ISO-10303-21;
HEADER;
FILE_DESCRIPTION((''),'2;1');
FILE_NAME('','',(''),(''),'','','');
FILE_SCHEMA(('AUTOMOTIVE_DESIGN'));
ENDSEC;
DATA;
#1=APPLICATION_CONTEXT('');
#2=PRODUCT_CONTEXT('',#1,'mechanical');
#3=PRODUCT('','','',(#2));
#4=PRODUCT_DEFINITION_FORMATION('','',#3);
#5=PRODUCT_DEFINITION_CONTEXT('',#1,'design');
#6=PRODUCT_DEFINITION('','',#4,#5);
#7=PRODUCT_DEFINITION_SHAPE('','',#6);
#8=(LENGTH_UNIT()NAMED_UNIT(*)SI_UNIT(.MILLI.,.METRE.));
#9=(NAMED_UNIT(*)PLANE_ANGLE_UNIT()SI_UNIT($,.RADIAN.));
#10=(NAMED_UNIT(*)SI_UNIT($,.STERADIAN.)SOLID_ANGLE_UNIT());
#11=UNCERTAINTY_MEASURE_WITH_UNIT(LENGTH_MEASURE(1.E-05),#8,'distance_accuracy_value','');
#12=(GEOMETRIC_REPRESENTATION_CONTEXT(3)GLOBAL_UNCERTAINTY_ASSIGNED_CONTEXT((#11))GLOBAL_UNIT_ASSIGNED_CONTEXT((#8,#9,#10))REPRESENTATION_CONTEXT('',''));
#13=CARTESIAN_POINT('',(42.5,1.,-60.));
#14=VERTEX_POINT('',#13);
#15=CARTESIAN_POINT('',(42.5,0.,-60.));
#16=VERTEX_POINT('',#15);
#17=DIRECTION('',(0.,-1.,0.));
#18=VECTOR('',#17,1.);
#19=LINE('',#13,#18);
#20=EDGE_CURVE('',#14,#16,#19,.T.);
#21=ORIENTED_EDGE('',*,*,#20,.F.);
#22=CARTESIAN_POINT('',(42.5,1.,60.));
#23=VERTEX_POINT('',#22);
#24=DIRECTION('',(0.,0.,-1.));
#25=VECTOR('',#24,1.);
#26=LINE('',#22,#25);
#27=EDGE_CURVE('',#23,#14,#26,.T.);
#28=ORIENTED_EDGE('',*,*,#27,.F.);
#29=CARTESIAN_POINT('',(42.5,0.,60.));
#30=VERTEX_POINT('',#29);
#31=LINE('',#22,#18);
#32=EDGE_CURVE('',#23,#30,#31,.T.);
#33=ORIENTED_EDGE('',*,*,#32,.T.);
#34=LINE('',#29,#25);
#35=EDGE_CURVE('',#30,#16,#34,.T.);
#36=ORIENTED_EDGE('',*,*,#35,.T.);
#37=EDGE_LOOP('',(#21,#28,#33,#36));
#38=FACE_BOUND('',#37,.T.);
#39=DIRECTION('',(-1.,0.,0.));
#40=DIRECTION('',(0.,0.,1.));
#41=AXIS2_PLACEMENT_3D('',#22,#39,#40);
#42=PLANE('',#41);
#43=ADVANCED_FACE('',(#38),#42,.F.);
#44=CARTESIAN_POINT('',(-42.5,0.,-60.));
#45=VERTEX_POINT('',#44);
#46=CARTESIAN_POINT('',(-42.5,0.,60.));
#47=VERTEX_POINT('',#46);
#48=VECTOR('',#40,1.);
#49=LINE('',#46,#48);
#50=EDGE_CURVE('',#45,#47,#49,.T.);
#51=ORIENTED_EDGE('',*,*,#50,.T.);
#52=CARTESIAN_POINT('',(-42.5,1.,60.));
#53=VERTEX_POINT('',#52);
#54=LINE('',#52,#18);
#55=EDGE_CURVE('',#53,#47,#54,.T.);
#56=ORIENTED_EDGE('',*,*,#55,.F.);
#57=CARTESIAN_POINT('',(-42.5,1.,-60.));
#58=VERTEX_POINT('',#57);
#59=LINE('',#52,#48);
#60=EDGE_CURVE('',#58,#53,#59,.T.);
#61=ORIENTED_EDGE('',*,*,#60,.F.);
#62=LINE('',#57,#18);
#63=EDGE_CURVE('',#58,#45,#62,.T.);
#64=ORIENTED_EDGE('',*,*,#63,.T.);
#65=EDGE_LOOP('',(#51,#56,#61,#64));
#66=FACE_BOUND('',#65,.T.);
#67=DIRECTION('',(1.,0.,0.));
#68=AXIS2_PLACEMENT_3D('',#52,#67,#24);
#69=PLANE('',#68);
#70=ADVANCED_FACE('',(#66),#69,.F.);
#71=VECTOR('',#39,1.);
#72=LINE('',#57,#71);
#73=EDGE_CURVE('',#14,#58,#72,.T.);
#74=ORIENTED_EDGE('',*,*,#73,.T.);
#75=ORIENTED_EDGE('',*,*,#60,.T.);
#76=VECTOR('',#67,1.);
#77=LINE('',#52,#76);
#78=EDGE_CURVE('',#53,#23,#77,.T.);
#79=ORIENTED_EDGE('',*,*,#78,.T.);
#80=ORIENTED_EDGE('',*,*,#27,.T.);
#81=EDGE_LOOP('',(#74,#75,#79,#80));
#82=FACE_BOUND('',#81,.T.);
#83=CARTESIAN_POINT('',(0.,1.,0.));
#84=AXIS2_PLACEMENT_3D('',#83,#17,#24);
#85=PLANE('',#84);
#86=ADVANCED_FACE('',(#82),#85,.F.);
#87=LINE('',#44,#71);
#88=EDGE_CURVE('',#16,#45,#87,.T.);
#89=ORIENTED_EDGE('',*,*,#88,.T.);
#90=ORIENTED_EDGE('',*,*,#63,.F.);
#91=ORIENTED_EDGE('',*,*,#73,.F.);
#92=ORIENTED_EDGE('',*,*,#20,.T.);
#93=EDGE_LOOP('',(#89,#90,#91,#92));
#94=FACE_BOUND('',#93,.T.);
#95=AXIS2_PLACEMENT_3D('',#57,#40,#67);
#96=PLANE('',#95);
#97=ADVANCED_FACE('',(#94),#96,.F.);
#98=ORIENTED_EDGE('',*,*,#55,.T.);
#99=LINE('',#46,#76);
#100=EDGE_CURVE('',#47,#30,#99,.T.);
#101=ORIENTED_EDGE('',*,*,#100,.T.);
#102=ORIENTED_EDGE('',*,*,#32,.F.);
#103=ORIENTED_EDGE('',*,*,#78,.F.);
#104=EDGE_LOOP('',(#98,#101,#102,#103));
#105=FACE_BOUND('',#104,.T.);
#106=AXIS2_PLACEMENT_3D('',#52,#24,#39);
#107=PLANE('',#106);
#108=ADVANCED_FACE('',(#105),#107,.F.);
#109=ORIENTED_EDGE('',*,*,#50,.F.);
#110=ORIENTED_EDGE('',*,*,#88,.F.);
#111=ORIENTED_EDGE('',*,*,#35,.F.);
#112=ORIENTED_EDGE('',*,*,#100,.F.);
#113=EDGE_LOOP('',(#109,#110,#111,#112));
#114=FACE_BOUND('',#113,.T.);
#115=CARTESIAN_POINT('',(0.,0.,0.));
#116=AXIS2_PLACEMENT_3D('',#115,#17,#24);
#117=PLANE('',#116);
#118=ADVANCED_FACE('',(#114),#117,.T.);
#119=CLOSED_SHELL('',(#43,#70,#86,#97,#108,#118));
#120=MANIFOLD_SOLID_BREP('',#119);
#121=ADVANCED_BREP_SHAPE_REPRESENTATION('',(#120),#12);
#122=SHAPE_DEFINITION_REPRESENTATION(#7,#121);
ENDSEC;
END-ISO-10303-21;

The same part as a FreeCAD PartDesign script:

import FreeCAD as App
import Part
import Sketcher
from FreeCAD import Vector
Q = App.Units.Quantity

doc = App.newDocument("Part")
body = doc.addObject("PartDesign::Body", "Body")

# Sketch on XZ plane
sketch1 = body.newObject("Sketcher::SketchObject", "Sketch")
sketch1.AttachmentSupport = (doc.getObject("XZ_Plane"), [""])
sketch1.MapMode = "FlatFace"
sketch1.addGeometry([
    Part.LineSegment(Vector(-42, -60, 0), Vector(-42, 60, 0)),
    Part.LineSegment(Vector(-42, 60, 0), Vector(42, 60, 0)),
    Part.LineSegment(Vector(42, 60, 0), Vector(42, -60, 0)),
    Part.LineSegment(Vector(42, -60, 0), Vector(-42, -60, 0)),
], False)
sketch1.addConstraint([
    Sketcher.Constraint("Coincident", 0, 2, 1, 1),
    Sketcher.Constraint("Coincident", 1, 2, 2, 1),
    Sketcher.Constraint("Coincident", 2, 2, 3, 1),
    Sketcher.Constraint("Coincident", 3, 2, 0, 1),
    Sketcher.Constraint("Vertical", 0),
    Sketcher.Constraint("Horizontal", 1),
    Sketcher.Constraint("Vertical", 2),
    Sketcher.Constraint("Horizontal", 3),
    Sketcher.Constraint("Symmetric", 0, 2, 2, 2, -1, 1),
    Sketcher.Constraint("DistanceX", 1, 1, 1, 2, Q("85 mm")),
    Sketcher.Constraint("DistanceY", 0, 1, 0, 2, Q("120 mm")),
])
pad1 = body.newObject("PartDesign::Pad", "Pad")
pad1.Profile = sketch1
pad1.Length = 1
pad1.Reversed = True

doc.recompute()
